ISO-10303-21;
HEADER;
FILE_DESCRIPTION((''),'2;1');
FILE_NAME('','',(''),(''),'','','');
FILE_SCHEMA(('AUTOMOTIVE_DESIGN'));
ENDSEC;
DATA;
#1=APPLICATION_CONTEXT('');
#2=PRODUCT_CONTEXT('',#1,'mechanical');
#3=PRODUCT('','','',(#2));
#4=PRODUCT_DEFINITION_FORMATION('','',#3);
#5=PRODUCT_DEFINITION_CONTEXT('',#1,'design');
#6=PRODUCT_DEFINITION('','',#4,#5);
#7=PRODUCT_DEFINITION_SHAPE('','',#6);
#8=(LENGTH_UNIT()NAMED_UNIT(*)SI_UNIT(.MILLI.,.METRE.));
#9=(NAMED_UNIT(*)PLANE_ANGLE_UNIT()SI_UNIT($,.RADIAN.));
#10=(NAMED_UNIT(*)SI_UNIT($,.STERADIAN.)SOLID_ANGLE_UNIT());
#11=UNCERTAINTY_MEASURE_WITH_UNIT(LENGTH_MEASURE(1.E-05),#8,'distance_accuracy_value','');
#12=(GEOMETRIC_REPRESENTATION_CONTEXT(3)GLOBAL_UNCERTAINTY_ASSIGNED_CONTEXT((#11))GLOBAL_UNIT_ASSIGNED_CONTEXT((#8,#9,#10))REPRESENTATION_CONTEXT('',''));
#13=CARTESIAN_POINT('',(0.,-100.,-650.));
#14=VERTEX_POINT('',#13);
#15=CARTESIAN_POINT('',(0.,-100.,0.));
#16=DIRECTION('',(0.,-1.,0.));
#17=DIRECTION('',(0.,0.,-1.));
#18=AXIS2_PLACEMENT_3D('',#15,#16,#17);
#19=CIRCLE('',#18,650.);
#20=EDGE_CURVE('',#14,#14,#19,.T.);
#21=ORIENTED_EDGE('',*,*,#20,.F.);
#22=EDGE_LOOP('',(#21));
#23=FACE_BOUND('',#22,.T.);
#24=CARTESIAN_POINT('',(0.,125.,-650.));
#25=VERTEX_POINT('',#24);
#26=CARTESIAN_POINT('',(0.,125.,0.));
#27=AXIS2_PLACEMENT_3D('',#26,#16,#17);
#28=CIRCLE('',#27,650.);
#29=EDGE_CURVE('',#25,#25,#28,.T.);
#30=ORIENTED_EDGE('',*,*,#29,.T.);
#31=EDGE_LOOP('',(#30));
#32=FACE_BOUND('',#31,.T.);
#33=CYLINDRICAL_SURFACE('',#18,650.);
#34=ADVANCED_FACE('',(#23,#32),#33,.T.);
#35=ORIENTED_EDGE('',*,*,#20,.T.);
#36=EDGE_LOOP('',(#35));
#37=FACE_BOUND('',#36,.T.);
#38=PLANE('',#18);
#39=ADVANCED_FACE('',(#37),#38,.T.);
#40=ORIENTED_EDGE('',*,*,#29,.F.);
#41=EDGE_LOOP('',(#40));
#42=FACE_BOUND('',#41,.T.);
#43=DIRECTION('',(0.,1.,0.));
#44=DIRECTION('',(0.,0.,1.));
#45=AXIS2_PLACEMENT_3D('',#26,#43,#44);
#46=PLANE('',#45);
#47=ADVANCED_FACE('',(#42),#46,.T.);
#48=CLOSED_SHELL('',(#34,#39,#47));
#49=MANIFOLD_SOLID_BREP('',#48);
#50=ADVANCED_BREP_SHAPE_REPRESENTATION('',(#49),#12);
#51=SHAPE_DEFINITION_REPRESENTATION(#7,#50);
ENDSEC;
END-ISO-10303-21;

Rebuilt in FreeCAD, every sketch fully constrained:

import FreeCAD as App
import Part
import Sketcher
Q = App.Units.Quantity

doc = App.newDocument("Part")
body = doc.addObject("PartDesign::Body", "Body")

# Sketch on XY plane
sketch1 = doc.addObject("Sketcher::SketchObject", "Sketch")
body.addObject(sketch1)
sketch1.AttachmentSupport = (doc.XY_Plane, [""])
sketch1.MapMode = "FlatFace"
sketch1.addGeometry([
    Part.LineSegment(App.Vector(0, 125, 0), App.Vector(0, -100, 0)),
    Part.LineSegment(App.Vector(0, -100, 0), App.Vector(650, -100, 0)),
    Part.LineSegment(App.Vector(650, -100, 0), App.Vector(650, 125, 0)),
    Part.LineSegment(App.Vector(650, 125, 0), App.Vector(0, 125, 0)),
], False)
sketch1.addConstraint([
    Sketcher.Constraint("Coincident", 0, 2, 1, 1),
    Sketcher.Constraint("Coincident", 1, 2, 2, 1),
    Sketcher.Constraint("Coincident", 2, 2, 3, 1),
    Sketcher.Constraint("Coincident", 3, 2, 0, 1),
    Sketcher.Constraint("Vertical", 0),
    Sketcher.Constraint("Horizontal", 1),
    Sketcher.Constraint("Vertical", 2),
    Sketcher.Constraint("Horizontal", 3),
    Sketcher.Constraint("PointOnObject", 0, 2, -2),
    Sketcher.Constraint("DistanceX", 1, 1, 1, 2, Q("650 mm")),
    Sketcher.Constraint("DistanceY", 0, 2, 0, 1, Q("225 mm")),
    Sketcher.Constraint("DistanceY", 0, 2, -1, 1, Q("100 mm")),
])
revolution = doc.addObject("PartDesign::Revolution", "Revolution")
body.addObject(revolution)
revolution.Profile = sketch1
revolution.ReferenceAxis = (sketch1, ["V_Axis"])
revolution.Angle = 360

doc.recompute()
